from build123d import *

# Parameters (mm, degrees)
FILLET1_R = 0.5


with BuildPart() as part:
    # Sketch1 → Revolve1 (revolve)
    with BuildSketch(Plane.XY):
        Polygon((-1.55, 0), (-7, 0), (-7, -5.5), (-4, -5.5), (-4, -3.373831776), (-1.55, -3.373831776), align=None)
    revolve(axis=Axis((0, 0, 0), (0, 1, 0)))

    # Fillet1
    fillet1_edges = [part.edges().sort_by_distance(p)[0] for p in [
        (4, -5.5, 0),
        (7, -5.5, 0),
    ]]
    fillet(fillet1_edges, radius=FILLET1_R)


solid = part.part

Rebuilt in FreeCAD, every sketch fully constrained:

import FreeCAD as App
import Part
import Sketcher
Q = App.Units.Quantity


def edges_at(feature, points):
    """Names of the edges that pass closest to the given points."""
    edges = feature.Shape.Edges
    near = lambda p: min(range(len(edges)), key=lambda i: edges[i].distToShape(Part.Vertex(*p))[0])
    return sorted({f"Edge{near(p) + 1}" for p in points})

doc = App.newDocument("Part")
body = doc.addObject("PartDesign::Body", "Body")

sketch1 = body.newObject("Sketcher::SketchObject", "Sketch")
sketch1.AttachmentSupport = (doc.getObject("XY_Plane"), [""])
sketch1.MapMode = "FlatFace"
sketch1.addGeometry(Part.LineSegment(App.Vector(-1.6, 0, 0), App.Vector(-7, 0, 0)), False)
sketch1.addGeometry(Part.LineSegment(App.Vector(-7, 0, 0), App.Vector(-7, -5.5, 0)), False)
sketch1.addGeometry(Part.LineSegment(App.Vector(-7, -5.5, 0), App.Vector(-4, -5.5, 0)), False)
sketch1.addGeometry(Part.LineSegment(App.Vector(-4, -5.5, 0), App.Vector(-4, -3.4, 0)), False)
sketch1.addGeometry(Part.LineSegment(App.Vector(-4, -3.4, 0), App.Vector(-1.6, -3.4, 0)), False)
sketch1.addGeometry(Part.LineSegment(App.Vector(-1.6, -3.4, 0), App.Vector(-1.6, 0, 0)), False)
sketch1.addConstraint(Sketcher.Constraint("Coincident", 0, 2, 1, 1))
sketch1.addConstraint(Sketcher.Constraint("Coincident", 1, 2, 2, 1))
sketch1.addConstraint(Sketcher.Constraint("Coincident", 2, 2, 3, 1))
sketch1.addConstraint(Sketcher.Constraint("Coincident", 3, 2, 4, 1))
sketch1.addConstraint(Sketcher.Constraint("Coincident", 4, 2, 5, 1))
sketch1.addConstraint(Sketcher.Constraint("Coincident", 5, 2, 0, 1))
sketch1.addConstraint(Sketcher.Constraint("Horizontal", 0))
sketch1.addConstraint(Sketcher.Constraint("Vertical", 1))
sketch1.addConstraint(Sketcher.Constraint("Horizontal", 2))
sketch1.addConstraint(Sketcher.Constraint("Vertical", 3))
sketch1.addConstraint(Sketcher.Constraint("Horizontal", 4))
sketch1.addConstraint(Sketcher.Constraint("Vertical", 5))
sketch1.addConstraint(Sketcher.Constraint("PointOnObject", 0, 2, -1))
sketch1.addConstraint(Sketcher.Constraint("DistanceX", 2, 1, 2, 2, Q("3 mm")))
sketch1.addConstraint(Sketcher.Constraint("DistanceY", 1, 2, 1, 1, Q("5.5 mm")))
sketch1.addConstraint(Sketcher.Constraint("DistanceX", 0, 2, -1, 1, Q("7 mm")))
sketch1.addConstraint(Sketcher.Constraint("DistanceX", 0, 2, 0, 1, Q("5.45 mm")))
sketch1.addConstraint(Sketcher.Constraint("DistanceY", 3, 1, 3, 2, Q("2.126168 mm")))
revolution = body.newObject("PartDesign::Revolution", "Revolution")
revolution.Profile = sketch1
revolution.ReferenceAxis = (sketch1, ["V_Axis"])
revolution.Angle = 360
doc.recompute()

fillet = body.newObject("PartDesign::Fillet", "Fillet")
fillet.Base = (revolution, edges_at(revolution, [(4, -5.5, 0), (7, -5.5, 0)]))
fillet.Radius = 0.5

doc.recompute()
